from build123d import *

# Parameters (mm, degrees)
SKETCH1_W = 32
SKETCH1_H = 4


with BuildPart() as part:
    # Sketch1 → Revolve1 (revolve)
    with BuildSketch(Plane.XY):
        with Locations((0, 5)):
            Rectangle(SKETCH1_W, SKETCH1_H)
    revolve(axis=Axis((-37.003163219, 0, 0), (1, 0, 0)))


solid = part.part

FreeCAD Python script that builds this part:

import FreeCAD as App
import Part
import Sketcher

V = App.Vector

doc = App.newDocument("Part")
params = doc.addObject("Spreadsheet::Sheet", "Params")
for row, (alias, value) in enumerate([
    ("sketch1_width", "32 mm"),
    ("sketch1_height", "4 mm"),
    ("revolution_angle", "360 deg"),
], start=1):
    params.set(f"A{row}", alias)
    params.set(f"B{row}", "=" + value)
    params.setAlias(f"B{row}", alias)

body = doc.addObject("PartDesign::Body", "Body")

sketch1 = body.newObject("Sketcher::SketchObject", "Sketch")
sketch1.AttachmentSupport = (doc.getObject("XY_Plane"), [""])
sketch1.MapMode = "FlatFace"
sketch1.addGeometry([
    Part.LineSegment(V(-16, 7, 0), V(-16, 3, 0)),
    Part.LineSegment(V(-16, 3, 0), V(16, 3, 0)),
    Part.LineSegment(V(16, 3, 0), V(16, 7, 0)),
    Part.LineSegment(V(16, 7, 0), V(-16, 7, 0)),
], False)
sketch1.addConstraint([
    Sketcher.Constraint("Coincident", 0, 2, 1, 1),
    Sketcher.Constraint("Coincident", 1, 2, 2, 1),
    Sketcher.Constraint("Coincident", 2, 2, 3, 1),
    Sketcher.Constraint("Coincident", 3, 2, 0, 1),
    Sketcher.Constraint("Vertical", 0),
    Sketcher.Constraint("Horizontal", 1),
    Sketcher.Constraint("Vertical", 2),
    Sketcher.Constraint("Horizontal", 3),
    Sketcher.Constraint("DistanceX", 1, 1, 1, 2, 32.0),
    Sketcher.Constraint("DistanceY", 0, 2, 0, 1, 4.0),
    Sketcher.Constraint("DistanceX", 0, 2, -1, 1, 16.0),
    Sketcher.Constraint("DistanceY", -1, 1, 0, 2, 3.0),
])
sketch1.setExpression("Constraints[8]", "Params.sketch1_width")
sketch1.setExpression("Constraints[9]", "Params.sketch1_height")
revolution = body.newObject("PartDesign::Revolution", "Revolution")
revolution.Profile = sketch1
revolution.ReferenceAxis = (sketch1, ["H_Axis"])
revolution.setExpression("Angle", "Params.revolution_angle")

doc.recompute()
